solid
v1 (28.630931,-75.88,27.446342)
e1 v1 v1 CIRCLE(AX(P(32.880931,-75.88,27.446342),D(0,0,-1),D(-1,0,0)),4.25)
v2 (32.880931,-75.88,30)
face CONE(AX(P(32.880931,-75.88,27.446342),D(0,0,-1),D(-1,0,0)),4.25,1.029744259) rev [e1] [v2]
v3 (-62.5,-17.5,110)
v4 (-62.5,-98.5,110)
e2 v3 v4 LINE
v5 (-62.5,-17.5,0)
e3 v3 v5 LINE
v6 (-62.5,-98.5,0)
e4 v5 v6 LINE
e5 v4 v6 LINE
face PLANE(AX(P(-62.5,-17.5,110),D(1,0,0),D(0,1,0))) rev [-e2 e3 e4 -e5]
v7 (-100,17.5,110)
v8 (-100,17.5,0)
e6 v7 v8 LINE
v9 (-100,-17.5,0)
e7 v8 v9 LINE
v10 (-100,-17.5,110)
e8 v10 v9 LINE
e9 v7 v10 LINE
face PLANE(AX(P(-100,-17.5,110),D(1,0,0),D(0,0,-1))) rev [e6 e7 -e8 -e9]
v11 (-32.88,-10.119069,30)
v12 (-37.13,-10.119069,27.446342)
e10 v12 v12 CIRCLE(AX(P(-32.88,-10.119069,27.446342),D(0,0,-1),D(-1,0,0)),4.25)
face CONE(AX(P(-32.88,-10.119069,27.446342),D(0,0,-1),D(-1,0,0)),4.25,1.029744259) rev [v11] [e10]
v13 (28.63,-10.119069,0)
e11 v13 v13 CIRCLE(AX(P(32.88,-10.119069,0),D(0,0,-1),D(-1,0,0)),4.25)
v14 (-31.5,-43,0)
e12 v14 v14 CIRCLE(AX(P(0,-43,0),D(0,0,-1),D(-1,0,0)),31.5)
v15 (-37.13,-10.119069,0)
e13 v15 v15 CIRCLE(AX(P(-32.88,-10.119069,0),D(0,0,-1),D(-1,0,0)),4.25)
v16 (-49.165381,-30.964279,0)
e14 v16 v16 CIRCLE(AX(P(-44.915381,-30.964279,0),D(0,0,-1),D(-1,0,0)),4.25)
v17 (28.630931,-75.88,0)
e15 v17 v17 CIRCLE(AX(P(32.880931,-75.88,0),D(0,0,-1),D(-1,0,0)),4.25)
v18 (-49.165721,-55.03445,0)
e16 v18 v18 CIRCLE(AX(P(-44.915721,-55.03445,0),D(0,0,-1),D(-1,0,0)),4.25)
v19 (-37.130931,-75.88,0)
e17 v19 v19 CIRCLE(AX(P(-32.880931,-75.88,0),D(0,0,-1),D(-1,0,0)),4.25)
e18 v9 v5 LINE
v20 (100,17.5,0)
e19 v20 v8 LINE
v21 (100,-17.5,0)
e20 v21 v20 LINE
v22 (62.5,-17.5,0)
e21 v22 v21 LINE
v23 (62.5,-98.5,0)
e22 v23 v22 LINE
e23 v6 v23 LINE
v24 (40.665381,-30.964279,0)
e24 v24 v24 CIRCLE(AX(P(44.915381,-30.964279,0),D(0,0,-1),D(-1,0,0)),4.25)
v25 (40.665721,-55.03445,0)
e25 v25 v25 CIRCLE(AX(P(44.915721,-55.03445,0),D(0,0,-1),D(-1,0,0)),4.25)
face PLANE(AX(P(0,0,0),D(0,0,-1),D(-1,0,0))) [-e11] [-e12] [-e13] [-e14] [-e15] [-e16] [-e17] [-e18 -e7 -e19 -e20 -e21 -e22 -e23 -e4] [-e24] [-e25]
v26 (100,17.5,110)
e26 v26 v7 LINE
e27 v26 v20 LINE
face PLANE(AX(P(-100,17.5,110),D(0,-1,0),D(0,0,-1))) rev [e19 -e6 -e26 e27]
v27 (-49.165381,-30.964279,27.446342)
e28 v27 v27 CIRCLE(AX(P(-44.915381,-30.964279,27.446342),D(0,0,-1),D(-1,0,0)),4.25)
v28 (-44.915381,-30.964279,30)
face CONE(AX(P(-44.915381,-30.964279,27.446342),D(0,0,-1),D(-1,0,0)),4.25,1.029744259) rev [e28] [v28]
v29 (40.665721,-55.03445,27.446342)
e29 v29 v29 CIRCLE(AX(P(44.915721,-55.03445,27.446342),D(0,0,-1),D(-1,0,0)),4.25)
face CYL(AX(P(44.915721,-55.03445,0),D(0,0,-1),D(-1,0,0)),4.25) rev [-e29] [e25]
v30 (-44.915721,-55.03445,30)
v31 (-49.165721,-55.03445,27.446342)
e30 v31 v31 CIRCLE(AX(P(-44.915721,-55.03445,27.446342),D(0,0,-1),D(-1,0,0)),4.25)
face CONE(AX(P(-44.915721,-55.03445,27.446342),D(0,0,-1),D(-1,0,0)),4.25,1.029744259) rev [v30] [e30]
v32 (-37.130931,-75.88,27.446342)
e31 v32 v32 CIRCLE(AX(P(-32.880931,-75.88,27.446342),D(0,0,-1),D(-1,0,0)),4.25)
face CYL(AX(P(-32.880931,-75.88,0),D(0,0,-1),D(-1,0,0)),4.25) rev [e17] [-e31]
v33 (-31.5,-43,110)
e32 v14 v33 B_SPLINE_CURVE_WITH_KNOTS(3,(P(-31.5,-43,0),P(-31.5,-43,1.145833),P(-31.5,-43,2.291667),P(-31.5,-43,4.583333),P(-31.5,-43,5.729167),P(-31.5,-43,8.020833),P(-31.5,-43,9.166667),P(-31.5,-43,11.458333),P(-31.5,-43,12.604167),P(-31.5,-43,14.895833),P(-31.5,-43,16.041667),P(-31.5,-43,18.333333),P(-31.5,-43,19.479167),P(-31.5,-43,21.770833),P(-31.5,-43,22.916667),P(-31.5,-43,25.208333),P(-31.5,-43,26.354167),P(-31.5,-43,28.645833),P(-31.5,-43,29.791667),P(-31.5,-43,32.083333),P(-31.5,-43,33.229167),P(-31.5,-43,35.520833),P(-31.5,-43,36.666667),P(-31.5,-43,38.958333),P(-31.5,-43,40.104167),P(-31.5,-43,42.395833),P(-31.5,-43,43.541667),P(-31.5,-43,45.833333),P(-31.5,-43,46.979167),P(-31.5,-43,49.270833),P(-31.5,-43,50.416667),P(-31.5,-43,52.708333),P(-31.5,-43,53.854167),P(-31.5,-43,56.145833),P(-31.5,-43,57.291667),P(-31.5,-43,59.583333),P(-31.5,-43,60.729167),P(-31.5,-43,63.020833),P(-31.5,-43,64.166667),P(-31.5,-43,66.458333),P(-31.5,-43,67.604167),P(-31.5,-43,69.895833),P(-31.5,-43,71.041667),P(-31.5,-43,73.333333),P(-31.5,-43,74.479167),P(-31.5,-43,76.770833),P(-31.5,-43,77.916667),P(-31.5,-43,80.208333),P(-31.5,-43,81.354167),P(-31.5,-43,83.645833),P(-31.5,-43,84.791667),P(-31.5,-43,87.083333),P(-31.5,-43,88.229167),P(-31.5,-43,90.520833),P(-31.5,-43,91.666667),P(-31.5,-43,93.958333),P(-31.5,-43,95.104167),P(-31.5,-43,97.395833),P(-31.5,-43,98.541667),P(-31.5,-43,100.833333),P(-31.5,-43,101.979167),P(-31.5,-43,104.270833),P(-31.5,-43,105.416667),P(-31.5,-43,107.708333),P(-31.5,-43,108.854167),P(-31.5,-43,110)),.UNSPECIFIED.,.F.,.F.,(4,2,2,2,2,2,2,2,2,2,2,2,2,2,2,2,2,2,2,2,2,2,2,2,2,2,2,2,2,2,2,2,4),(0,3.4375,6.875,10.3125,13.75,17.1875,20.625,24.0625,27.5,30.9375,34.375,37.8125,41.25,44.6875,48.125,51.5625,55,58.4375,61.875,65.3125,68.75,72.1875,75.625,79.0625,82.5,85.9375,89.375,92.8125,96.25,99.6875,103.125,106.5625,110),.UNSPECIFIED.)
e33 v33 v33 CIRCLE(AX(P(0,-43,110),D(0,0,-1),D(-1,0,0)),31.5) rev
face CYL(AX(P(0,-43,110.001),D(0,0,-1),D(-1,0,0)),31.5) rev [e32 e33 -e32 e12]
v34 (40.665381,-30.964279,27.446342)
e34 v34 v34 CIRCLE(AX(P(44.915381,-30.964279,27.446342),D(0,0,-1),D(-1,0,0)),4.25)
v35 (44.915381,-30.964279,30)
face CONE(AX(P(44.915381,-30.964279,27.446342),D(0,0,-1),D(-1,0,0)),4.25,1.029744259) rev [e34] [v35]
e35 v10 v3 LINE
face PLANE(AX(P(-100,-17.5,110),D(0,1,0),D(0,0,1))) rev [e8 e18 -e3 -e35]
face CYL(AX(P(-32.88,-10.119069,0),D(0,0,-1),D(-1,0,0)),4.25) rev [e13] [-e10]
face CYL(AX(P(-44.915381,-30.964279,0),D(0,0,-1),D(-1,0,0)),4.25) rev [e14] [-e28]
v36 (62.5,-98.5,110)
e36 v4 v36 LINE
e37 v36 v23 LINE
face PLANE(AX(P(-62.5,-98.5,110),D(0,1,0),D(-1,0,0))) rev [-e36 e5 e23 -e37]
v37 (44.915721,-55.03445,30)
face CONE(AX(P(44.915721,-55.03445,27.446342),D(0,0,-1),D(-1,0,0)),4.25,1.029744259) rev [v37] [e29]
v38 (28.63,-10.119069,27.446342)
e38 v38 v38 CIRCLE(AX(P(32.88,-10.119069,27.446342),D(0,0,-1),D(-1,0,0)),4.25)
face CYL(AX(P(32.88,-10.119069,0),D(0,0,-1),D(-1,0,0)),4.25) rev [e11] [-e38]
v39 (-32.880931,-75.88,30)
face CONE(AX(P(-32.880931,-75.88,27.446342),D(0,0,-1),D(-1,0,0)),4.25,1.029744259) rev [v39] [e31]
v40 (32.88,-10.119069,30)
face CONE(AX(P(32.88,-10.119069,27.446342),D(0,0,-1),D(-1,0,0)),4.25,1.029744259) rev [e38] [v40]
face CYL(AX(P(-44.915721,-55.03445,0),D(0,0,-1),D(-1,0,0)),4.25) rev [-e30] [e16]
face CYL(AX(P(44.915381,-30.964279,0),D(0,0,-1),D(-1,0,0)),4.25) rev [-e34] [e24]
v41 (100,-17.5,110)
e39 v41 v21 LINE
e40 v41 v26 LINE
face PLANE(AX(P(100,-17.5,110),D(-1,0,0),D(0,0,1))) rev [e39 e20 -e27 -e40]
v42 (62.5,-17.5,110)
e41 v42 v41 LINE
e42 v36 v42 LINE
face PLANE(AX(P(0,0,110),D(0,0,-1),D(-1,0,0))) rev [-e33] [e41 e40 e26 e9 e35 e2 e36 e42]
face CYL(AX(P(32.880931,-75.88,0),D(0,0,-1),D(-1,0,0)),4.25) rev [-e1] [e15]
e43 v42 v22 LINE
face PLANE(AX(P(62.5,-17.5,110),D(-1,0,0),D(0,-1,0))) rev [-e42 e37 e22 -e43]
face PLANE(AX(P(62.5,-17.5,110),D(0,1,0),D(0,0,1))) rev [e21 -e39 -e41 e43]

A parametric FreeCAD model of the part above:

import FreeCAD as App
import Part
import Sketcher
from FreeCAD import Vector
Q = App.Units.Quantity


def add_polygon(sketch, points):
    """Adds a closed chain of lines whose ends are joined by coincident constraints."""
    first, n = sketch.GeometryCount, len(points)
    for a, b in zip(points, points[1:] + points[:1]):
        sketch.addGeometry(Part.LineSegment(App.Vector(*a, 0), App.Vector(*b, 0)), False)
    for i in range(n):
        sketch.addConstraint(Sketcher.Constraint("Coincident", first + i, 2, first + (i + 1) % n, 1))

doc = App.newDocument("Part")
body = doc.addObject("PartDesign::Body", "Body")

sketch1 = body.newObject("Sketcher::SketchObject", "Sketch")
sketch1.AttachmentSupport = (doc.getObject("XY_Plane"), [""])
sketch1.MapMode = "FlatFace"
add_polygon(sketch1, [(-100, -18), (-62, -18), (-62, -98), (62, -98), (62, -18), (100, -18), (100, 18), (-100, 18)])
sketch1.addConstraint(Sketcher.Constraint("Horizontal", 0))
sketch1.addConstraint(Sketcher.Constraint("Vertical", 1))
sketch1.addConstraint(Sketcher.Constraint("Horizontal", 2))
sketch1.addConstraint(Sketcher.Constraint("Vertical", 3))
sketch1.addConstraint(Sketcher.Constraint("Horizontal", 4))
sketch1.addConstraint(Sketcher.Constraint("Vertical", 5))
sketch1.addConstraint(Sketcher.Constraint("Horizontal", 6))
sketch1.addConstraint(Sketcher.Constraint("Vertical", 7))
sketch1.addConstraint(Sketcher.Constraint("Symmetric", 4, 2, 6, 2, -1, 1))
sketch1.addConstraint(Sketcher.Constraint("Symmetric", 0, 2, 3, 2, -2))
sketch1.addConstraint(Sketcher.Constraint("DistanceX", 2, 1, 2, 2, 125.0))
sketch1.addConstraint(Sketcher.Constraint("DistanceX", 6, 2, 6, 1, 200.0))
sketch1.addConstraint(Sketcher.Constraint("DistanceY", 1, 2, 1, 1, 81.0))
sketch1.addConstraint(Sketcher.Constraint("DistanceY", 5, 1, 5, 2, 35.0))
pad1 = body.newObject("PartDesign::Pad", "Pad")
pad1.Profile = sketch1
pad1.Length = 110

sketch2 = body.newObject("Sketcher::SketchObject", "Sketch001")
sketch2.AttachmentSupport = (doc.getObject("XY_Plane"), [""])
sketch2.MapMode = "FlatFace"
sketch2.addGeometry(Part.Circle(Vector(0, -43, 0), Vector(0, 0, 1), 32), False)
sketch2.addConstraint(Sketcher.Constraint("PointOnObject", 0, 3, -2))
sketch2.addConstraint(Sketcher.Constraint("Diameter", 0, 63.0))
sketch2.addConstraint(Sketcher.Constraint("DistanceY", 0, 3, -1, 1, 43.0))
pocket1 = body.newObject("PartDesign::Pocket", "Pocket")
pocket1.Profile = sketch2
pocket1.Type = "UpToFirst"
pocket1.Reversed = True

sketch3 = body.newObject("Sketcher::SketchObject", "Sketch002")
sketch3.AttachmentSupport = (doc.getObject("YZ_Plane"), [""])
sketch3.MapMode = "FlatFace"
sketch3.AttachmentOffset = App.Placement(Vector(0, 0, -32.88), App.Rotation())
add_polygon(sketch3, [(-10.1, 30), (-10.1, 0), (-5.9, 0), (-5.9, 27.4)])
sketch3.addGeometry(Part.LineSegment(Vector(-10.1, 0, 0), Vector(-10.1, 30, 0)), True)
sketch3.addConstraint(Sketcher.Constraint("Vertical", 0))
sketch3.addConstraint(Sketcher.Constraint("Horizontal", 1))
sketch3.addConstraint(Sketcher.Constraint("Vertical", 2))
sketch3.addConstraint(Sketcher.Constraint("Vertical", 4))
sketch3.addConstraint(Sketcher.Constraint("Coincident", 4, 1, 0, 2))
sketch3.addConstraint(Sketcher.Constraint("PointOnObject", 0, 2, -1))
sketch3.addConstraint(Sketcher.Constraint("Equal", 0, 4))
sketch3.addConstraint(Sketcher.Constraint("DistanceY", 0, 2, 0, 1, 30.0))
sketch3.addConstraint(Sketcher.Constraint("Angle", 3, Q("149 deg")))
sketch3.addConstraint(Sketcher.Constraint("DistanceX", 1, 1, 1, 2, 4.25))
sketch3.addConstraint(Sketcher.Constraint("DistanceX", 0, 2, -1, 1, 10.119069))
groove = body.newObject("PartDesign::Groove", "Groove")
groove.Profile = sketch3
groove.ReferenceAxis = (sketch3, ["Axis0"])
groove.Angle = 360
doc.recompute()

datumline = body.newObject("PartDesign::Line", "DatumLine")
datumline.Placement = App.Placement(Vector(0, -43, 0), App.Rotation(Vector(0, 0, 1), Vector(0, 0, 1)))
polarpattern = body.newObject("PartDesign::PolarPattern", "PolarPattern")
polarpattern.Originals = [groove]
polarpattern.Axis = (datumline, [""])
polarpattern.Angle = 90
polarpattern.Occurrences = 4
body.Tip = polarpattern
doc.recompute()

mirrored = body.newObject("PartDesign::Mirrored", "Mirrored")
mirrored.Originals = [groove]
mirrored.MirrorPlane = (doc.getObject("YZ_Plane"), [""])
body.Tip = mirrored

sketch4 = body.newObject("Sketcher::SketchObject", "Sketch003")
sketch4.Placement = App.Placement(Vector(44.915381, -30.964279, 0), App.Rotation(Vector(0.5, 0.866025404, 0), Vector(0, 0, -1), Vector(-0.866025404, 0.5, 0), "ZXY"))
add_polygon(sketch4, [(0, 0), (0, -30), (4.3, -27.4), (4.3, 0)])
sketch4.addConstraint(Sketcher.Constraint("Vertical", 0))
sketch4.addConstraint(Sketcher.Constraint("Vertical", 2))
sketch4.addConstraint(Sketcher.Constraint("Horizontal", 3))
sketch4.addConstraint(Sketcher.Constraint("Coincident", 3, 2, -1, 1))
sketch4.addConstraint(Sketcher.Constraint("DistanceY", 0, 2, 0, 1, 30.0))
sketch4.addConstraint(Sketcher.Constraint("Angle", 1, Q("31 deg")))
sketch4.addConstraint(Sketcher.Constraint("DistanceX", 3, 2, 3, 1, 4.25))
groove2 = body.newObject("PartDesign::Groove", "Groove001")
groove2.Profile = sketch4
groove2.ReferenceAxis = (sketch4, ["V_Axis"])
groove2.Angle = 360

sketch5 = body.newObject("Sketcher::SketchObject", "Sketch004")
sketch5.Placement = App.Placement(Vector(44.915721, -55.03445, 0), App.Rotation(Vector(0.866025404, 0.5, 0), Vector(0, 0, -1), Vector(-0.5, 0.866025404, 0), "ZXY"))
add_polygon(sketch5, [(0, 0), (0, -30), (4.3, -27.4), (4.3, 0)])
sketch5.addConstraint(Sketcher.Constraint("Vertical", 0))
sketch5.addConstraint(Sketcher.Constraint("Vertical", 2))
sketch5.addConstraint(Sketcher.Constraint("Horizontal", 3))
sketch5.addConstraint(Sketcher.Constraint("Coincident", 3, 2, -1, 1))
sketch5.addConstraint(Sketcher.Constraint("DistanceY", 0, 2, 0, 1, 30.0))
sketch5.addConstraint(Sketcher.Constraint("Angle", 1, Q("31 deg")))
sketch5.addConstraint(Sketcher.Constraint("DistanceX", 3, 2, 3, 1, 4.25))
groove3 = body.newObject("PartDesign::Groove", "Groove002")
groove3.Profile = sketch5
groove3.ReferenceAxis = (sketch5, ["V_Axis"])
groove3.Angle = 360

sketch6 = body.newObject("Sketcher::SketchObject", "Sketch005")
sketch6.AttachmentSupport = (doc.getObject("XZ_Plane"), [""])
sketch6.MapMode = "FlatFace"
sketch6.AttachmentOffset = App.Placement(Vector(0, 0, 75.88), App.Rotation())
add_polygon(sketch6, [(32.9, 0), (32.9, 30), (37.1, 27.4), (37.1, 0)])
sketch6.addGeometry(Part.LineSegment(Vector(32.9, 30, 0), Vector(32.9, 0, 0)), True)
sketch6.addConstraint(Sketcher.Constraint("Vertical", 0))
sketch6.addConstraint(Sketcher.Constraint("Vertical", 2))
sketch6.addConstraint(Sketcher.Constraint("Horizontal", 3))
sketch6.addConstraint(Sketcher.Constraint("Vertical", 4))
sketch6.addConstraint(Sketcher.Constraint("Coincident", 4, 1, 0, 2))
sketch6.addConstraint(Sketcher.Constraint("PointOnObject", 2, 2, -1))
sketch6.addConstraint(Sketcher.Constraint("PointOnObject", 4, 2, -1))
sketch6.addConstraint(Sketcher.Constraint("DistanceY", 0, 1, 0, 2, 30.0))
sketch6.addConstraint(Sketcher.Constraint("Angle", 1, Q("-31 deg")))
sketch6.addConstraint(Sketcher.Constraint("DistanceX", 3, 2, 3, 1, 4.25))
sketch6.addConstraint(Sketcher.Constraint("DistanceX", -1, 1, 0, 2, 32.880931))
groove4 = body.newObject("PartDesign::Groove", "Groove003")
groove4.Profile = sketch6
groove4.ReferenceAxis = (sketch6, ["Axis0"])
groove4.Angle = 360

doc.recompute()
